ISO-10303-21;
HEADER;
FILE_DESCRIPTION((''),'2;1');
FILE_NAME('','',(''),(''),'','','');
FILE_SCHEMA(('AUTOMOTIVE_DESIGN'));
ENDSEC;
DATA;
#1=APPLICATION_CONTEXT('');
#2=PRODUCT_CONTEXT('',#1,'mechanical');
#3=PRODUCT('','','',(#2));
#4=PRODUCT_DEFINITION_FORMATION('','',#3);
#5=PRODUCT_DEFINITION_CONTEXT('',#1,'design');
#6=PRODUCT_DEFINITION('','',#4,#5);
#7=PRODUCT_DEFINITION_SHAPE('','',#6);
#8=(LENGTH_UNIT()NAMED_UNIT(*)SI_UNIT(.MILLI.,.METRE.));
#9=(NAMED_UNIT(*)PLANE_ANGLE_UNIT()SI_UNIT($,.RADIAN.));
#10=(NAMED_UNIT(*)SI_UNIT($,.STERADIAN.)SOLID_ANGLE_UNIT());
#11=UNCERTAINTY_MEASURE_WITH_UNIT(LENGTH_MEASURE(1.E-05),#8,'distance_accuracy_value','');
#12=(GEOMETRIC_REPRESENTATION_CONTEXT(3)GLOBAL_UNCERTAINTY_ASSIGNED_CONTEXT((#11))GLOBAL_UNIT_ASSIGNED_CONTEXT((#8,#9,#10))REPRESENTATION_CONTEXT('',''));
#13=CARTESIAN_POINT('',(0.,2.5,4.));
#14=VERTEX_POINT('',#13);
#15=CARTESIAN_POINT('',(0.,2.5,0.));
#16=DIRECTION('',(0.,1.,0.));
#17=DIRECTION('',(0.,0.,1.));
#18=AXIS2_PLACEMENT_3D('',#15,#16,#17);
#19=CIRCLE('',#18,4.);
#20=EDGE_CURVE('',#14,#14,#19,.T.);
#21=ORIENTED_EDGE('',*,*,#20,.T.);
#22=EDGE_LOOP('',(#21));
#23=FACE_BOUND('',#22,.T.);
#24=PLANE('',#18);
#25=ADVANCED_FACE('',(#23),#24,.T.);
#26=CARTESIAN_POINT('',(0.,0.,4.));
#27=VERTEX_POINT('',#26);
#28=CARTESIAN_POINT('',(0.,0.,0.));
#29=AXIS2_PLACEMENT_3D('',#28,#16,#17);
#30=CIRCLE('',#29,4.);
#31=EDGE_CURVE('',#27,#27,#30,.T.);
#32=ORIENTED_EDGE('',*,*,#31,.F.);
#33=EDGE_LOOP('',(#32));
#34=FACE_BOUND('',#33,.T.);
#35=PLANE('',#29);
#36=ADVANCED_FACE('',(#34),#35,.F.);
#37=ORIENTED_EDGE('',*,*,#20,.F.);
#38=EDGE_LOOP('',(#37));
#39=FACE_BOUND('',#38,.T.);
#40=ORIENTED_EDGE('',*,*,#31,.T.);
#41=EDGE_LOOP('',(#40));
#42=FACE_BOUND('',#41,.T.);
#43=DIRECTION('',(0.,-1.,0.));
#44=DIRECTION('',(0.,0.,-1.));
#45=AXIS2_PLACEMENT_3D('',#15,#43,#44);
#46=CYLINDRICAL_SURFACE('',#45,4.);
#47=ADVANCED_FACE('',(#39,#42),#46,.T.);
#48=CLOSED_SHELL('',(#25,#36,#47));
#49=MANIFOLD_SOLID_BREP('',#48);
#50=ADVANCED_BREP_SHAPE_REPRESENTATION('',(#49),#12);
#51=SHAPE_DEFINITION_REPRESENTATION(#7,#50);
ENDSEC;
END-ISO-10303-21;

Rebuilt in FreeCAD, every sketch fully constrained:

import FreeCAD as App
import Part
import Sketcher

V = App.Vector
Q = App.Units.Quantity

doc = App.newDocument("Part")
body = doc.addObject("PartDesign::Body", "Body")

# Sketch on XZ plane
sketch1 = body.newObject("Sketcher::SketchObject", "Sketch")
sketch1.AttachmentSupport = (doc.getObject("XZ_Plane"), [""])
sketch1.MapMode = "FlatFace"
sketch1.addGeometry(Part.Circle(V(0, 0, 0), V(0, 0, 1), 4), False)
sketch1.addConstraint(Sketcher.Constraint("Coincident", 0, 3, -1, 1))
sketch1.addConstraint(Sketcher.Constraint("Diameter", 0, Q("8 mm")))
pad1 = body.newObject("PartDesign::Pad", "Pad")
pad1.Profile = sketch1
pad1.Length = 2.5
pad1.Reversed = True

doc.recompute()
